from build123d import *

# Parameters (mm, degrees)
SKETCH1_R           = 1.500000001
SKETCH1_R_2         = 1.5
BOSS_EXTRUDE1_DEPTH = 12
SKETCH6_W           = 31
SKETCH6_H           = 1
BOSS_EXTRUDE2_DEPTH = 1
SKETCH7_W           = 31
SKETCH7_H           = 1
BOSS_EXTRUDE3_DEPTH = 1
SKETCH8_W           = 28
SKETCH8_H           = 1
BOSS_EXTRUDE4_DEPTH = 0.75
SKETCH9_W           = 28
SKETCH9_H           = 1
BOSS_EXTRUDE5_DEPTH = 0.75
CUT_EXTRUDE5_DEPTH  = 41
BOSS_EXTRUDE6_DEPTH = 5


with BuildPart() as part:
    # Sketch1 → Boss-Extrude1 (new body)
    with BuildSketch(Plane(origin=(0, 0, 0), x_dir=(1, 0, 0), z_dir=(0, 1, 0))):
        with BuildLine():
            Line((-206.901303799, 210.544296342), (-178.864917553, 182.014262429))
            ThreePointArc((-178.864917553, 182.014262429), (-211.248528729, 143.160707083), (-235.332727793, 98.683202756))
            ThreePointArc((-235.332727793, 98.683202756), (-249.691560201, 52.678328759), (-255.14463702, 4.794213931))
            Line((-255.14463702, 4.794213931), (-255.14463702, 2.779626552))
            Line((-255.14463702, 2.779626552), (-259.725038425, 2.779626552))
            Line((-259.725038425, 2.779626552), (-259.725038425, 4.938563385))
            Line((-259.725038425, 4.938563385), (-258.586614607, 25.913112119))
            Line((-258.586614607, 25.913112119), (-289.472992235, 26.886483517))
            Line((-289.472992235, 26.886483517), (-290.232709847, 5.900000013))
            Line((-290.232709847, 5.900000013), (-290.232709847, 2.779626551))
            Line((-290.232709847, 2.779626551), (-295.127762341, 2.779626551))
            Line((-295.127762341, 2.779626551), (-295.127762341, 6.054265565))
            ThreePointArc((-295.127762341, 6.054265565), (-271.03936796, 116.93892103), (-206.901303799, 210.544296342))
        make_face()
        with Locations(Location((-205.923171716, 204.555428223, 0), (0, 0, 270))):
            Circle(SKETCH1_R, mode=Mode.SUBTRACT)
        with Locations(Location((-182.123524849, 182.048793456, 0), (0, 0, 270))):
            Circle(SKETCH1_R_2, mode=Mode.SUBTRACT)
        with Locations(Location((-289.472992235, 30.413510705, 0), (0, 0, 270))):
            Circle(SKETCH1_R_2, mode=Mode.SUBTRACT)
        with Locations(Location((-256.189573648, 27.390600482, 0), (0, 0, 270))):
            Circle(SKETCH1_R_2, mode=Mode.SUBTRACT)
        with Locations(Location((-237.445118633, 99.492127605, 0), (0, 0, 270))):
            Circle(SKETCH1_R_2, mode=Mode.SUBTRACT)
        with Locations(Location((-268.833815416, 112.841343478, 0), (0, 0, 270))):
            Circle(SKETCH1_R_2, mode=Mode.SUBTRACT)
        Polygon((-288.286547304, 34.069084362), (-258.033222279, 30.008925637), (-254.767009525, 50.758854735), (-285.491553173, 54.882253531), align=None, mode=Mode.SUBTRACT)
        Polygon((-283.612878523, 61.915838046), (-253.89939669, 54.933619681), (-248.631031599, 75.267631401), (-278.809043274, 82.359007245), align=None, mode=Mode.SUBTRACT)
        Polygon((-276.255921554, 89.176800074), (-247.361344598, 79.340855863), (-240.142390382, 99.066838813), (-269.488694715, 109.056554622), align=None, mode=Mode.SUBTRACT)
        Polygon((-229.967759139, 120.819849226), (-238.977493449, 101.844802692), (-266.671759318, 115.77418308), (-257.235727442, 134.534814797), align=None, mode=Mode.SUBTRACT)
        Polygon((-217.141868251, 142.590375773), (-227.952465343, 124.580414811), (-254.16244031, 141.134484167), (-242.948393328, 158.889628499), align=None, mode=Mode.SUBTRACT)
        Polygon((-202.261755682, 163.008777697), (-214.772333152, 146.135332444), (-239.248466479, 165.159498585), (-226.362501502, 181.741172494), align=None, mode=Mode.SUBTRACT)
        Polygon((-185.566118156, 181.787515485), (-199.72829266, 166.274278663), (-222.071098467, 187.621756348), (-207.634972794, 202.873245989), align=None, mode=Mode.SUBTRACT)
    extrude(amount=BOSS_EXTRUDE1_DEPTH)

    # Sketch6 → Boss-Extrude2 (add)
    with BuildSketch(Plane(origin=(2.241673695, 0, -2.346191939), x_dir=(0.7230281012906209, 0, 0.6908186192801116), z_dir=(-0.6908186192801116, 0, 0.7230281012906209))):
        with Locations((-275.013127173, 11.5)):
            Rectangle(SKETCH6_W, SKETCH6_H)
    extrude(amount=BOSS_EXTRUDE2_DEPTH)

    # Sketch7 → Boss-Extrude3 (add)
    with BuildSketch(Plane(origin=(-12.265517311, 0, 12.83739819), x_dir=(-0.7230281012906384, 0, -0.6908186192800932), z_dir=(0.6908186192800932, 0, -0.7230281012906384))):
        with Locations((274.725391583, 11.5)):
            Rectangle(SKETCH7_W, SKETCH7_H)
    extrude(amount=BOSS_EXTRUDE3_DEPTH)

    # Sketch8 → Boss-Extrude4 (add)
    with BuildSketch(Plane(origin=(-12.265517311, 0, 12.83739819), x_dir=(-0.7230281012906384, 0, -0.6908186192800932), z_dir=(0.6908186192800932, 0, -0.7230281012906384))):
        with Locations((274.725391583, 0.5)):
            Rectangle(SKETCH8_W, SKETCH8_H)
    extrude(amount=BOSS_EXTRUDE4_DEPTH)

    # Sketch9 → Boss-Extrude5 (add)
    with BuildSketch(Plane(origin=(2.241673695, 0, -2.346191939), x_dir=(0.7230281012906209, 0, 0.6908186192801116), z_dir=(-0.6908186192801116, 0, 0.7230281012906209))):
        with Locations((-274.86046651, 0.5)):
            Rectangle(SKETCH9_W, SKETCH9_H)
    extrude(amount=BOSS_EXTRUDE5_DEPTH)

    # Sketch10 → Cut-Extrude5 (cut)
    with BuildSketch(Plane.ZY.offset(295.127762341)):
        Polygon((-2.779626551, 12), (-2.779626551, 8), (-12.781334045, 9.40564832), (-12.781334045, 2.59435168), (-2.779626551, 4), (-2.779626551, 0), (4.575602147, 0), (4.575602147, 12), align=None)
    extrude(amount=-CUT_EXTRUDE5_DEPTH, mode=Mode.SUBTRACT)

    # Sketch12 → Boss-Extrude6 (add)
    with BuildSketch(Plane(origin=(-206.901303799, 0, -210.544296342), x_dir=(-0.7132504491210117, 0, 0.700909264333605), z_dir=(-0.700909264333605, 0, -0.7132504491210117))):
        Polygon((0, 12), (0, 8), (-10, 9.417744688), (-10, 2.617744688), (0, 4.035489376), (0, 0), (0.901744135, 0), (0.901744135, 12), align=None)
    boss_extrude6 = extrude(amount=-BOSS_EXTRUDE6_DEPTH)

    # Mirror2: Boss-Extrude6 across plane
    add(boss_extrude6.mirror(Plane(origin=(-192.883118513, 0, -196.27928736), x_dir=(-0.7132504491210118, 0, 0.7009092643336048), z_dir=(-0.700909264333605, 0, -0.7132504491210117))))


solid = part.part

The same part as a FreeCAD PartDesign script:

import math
import FreeCAD as App
import Part
import Sketcher
Q = App.Units.Quantity


def add_polygon(sketch, points):
    """Adds a closed chain of lines whose ends are joined by coincident constraints."""
    first, n = sketch.GeometryCount, len(points)
    for a, b in zip(points, points[1:] + points[:1]):
        sketch.addGeometry(Part.LineSegment(App.Vector(*a, 0), App.Vector(*b, 0)), False)
    for i in range(n):
        sketch.addConstraint(Sketcher.Constraint("Coincident", first + i, 2, first + (i + 1) % n, 1))

doc = App.newDocument("Part")
body = doc.addObject("PartDesign::Body", "Body")

# Sketch on XZ plane
sketch1 = body.newObject("Sketcher::SketchObject", "Sketch")
sketch1.AttachmentSupport = (doc.getObject("XZ_Plane"), [""])
sketch1.MapMode = "FlatFace"
sketch1.addGeometry(Part.LineSegment(App.Vector(-178.864918, -182.014262, 0), App.Vector(-206.901304, -210.544296, 0)), False)  # 0
sketch1.addGeometry(Part.ArcOfCircle(Part.Circle(App.Vector(0, 0, 0), App.Vector(0, 0, 1), 295.189855), math.radians(-178.824796), math.radians(-134.5)), False)  # 1
sketch1.addGeometry(Part.LineSegment(App.Vector(-295.127762, -6.054266, 0), App.Vector(-295.127762, -2.779627, 0)), False)  # 2
sketch1.addGeometry(Part.LineSegment(App.Vector(-295.127762, -2.779627, 0), App.Vector(-290.23271, -2.779627, 0)), False)  # 3
sketch1.addGeometry(Part.LineSegment(App.Vector(-290.23271, -2.779627, 0), App.Vector(-290.23271, -5.9, 0)), False)  # 4
sketch1.addGeometry(Part.LineSegment(App.Vector(-290.23271, -5.9, 0), App.Vector(-289.472992, -26.886484, 0)), False)  # 5
sketch1.addGeometry(Part.LineSegment(App.Vector(-289.472992, -26.886484, 0), App.Vector(-258.586615, -25.913112, 0)), False)  # 6
sketch1.addGeometry(Part.LineSegment(App.Vector(-258.586615, -25.913112, 0), App.Vector(-259.725038, -4.938563, 0)), False)  # 7
sketch1.addGeometry(Part.LineSegment(App.Vector(-259.725038, -4.938563, 0), App.Vector(-259.725038, -2.779627, 0)), False)  # 8
sketch1.addGeometry(Part.LineSegment(App.Vector(-259.725038, -2.779627, 0), App.Vector(-255.144637, -2.779627, 0)), False)  # 9
sketch1.addGeometry(Part.LineSegment(App.Vector(-255.144637, -2.779627, 0), App.Vector(-255.144637, -4.794214, 0)), False)  # 10
sketch1.addGeometry(Part.ArcOfCircle(Part.Circle(App.Vector(-0.008796, 0.008278, 0), App.Vector(0, 0, 1), 255.181037), math.radians(-178.921633), math.radians(-157.247522)), False)  # 11
sketch1.addGeometry(Part.ArcOfCircle(Part.Circle(App.Vector(-0.00026, -0.012076, 0), App.Vector(0, 0, 1), 255.181037), math.radians(-157.252478), math.radians(-134.501859)), False)  # 12
sketch1.addGeometry(Part.Circle(App.Vector(-256.189574, -27.3906, 0), App.Vector(0, 0, 1), 1.5), False)  # 13
add_polygon(sketch1, [(-288.286547, -34.069084), (-285.491553, -54.882254), (-254.76701, -50.758855), (-258.033222, -30.008926)])  # lines 14-17
sketch1.addGeometry(Part.Circle(App.Vector(-289.472992, -30.413511, 0), App.Vector(0, 0, 1), 1.5), False)  # 18
add_polygon(sketch1, [(-283.612879, -61.915838), (-278.809043, -82.359007), (-248.631032, -75.267631), (-253.899397, -54.93362)])  # lines 19-22
sketch1.addGeometry(Part.Circle(App.Vector(-237.445119, -99.492128, 0), App.Vector(0, 0, 1), 1.5), False)  # 23
add_polygon(sketch1, [(-276.255922, -89.1768), (-269.488695, -109.056555), (-240.14239, -99.066839), (-247.361345, -79.340856)])  # lines 24-27
sketch1.addGeometry(Part.Circle(App.Vector(-268.833815, -112.841343, 0), App.Vector(0, 0, 1), 1.5), False)  # 28
add_polygon(sketch1, [(-217.141868, -142.590376), (-227.952465, -124.580415), (-254.16244, -141.134484), (-242.948393, -158.889628)])  # lines 29-32
sketch1.addGeometry(Part.Circle(App.Vector(-182.123525, -182.048793, 0), App.Vector(0, 0, 1), 1.5), False)  # 33
add_polygon(sketch1, [(-185.566118, -181.787515), (-199.728293, -166.274279), (-222.071098, -187.621756), (-207.634973, -202.873246)])  # lines 34-37
sketch1.addGeometry(Part.Circle(App.Vector(-205.923172, -204.555428, 0), App.Vector(0, 0, 1), 1.5), False)  # 38
add_polygon(sketch1, [(-202.261756, -163.008778), (-214.772333, -146.135332), (-239.248466, -165.159499), (-226.362502, -181.741172)])  # lines 39-42
add_polygon(sketch1, [(-229.967759, -120.819849), (-238.977493, -101.844803), (-266.671759, -115.774183), (-257.235727, -134.534815)])  # lines 43-46
sketch1.addConstraint([
    Sketcher.Constraint("Coincident", 0, 2, 1, 2),
    Sketcher.Constraint("Coincident", 1, 1, 2, 1),
    Sketcher.Constraint("Coincident", 2, 2, 3, 1),
    Sketcher.Constraint("Coincident", 3, 2, 4, 1),
    Sketcher.Constraint("Coincident", 4, 2, 5, 1),
    Sketcher.Constraint("Coincident", 5, 2, 6, 1),
    Sketcher.Constraint("Coincident", 6, 2, 7, 1),
    Sketcher.Constraint("Coincident", 7, 2, 8, 1),
    Sketcher.Constraint("Coincident", 8, 2, 9, 1),
    Sketcher.Constraint("Coincident", 9, 2, 10, 1),
    Sketcher.Constraint("Coincident", 10, 2, 11, 1),
    Sketcher.Constraint("Coincident", 11, 2, 12, 1),
    Sketcher.Constraint("Coincident", 12, 2, 0, 1),
    Sketcher.Constraint("Vertical", 2),
    Sketcher.Constraint("Horizontal", 3),
    Sketcher.Constraint("Vertical", 4),
    Sketcher.Constraint("Vertical", 8),
    Sketcher.Constraint("Horizontal", 9),
    Sketcher.Constraint("Vertical", 10),
    Sketcher.Constraint("Coincident", 1, 3, -1, 1),
    Sketcher.Constraint("Diameter", 13, Q("3 mm")),
    Sketcher.Constraint("Diameter", 18, Q("3 mm")),
    Sketcher.Constraint("Diameter", 23, Q("3 mm")),
    Sketcher.Constraint("Diameter", 28, Q("3 mm")),
    Sketcher.Constraint("Diameter", 33, Q("3 mm")),
    Sketcher.Constraint("Diameter", 38, Q("3 mm")),
    Sketcher.Constraint("Distance", 14, Q("21 mm")),
    Sketcher.Constraint("Distance", 15, Q("31 mm")),
    Sketcher.Constraint("Distance", 19, Q("21 mm")),
    Sketcher.Constraint("Distance", 20, Q("31 mm")),
    Sketcher.Constraint("Distance", 24, Q("21 mm")),
    Sketcher.Constraint("Distance", 25, Q("31 mm")),
    Sketcher.Constraint("Distance", 30, Q("31 mm")),
    Sketcher.Constraint("Distance", 31, Q("21 mm")),
    Sketcher.Constraint("Distance", 40, Q("31 mm")),
    Sketcher.Constraint("Distance", 41, Q("21 mm")),
    Sketcher.Constraint("Distance", 44, Q("31 mm")),
    Sketcher.Constraint("Distance", 45, Q("21 mm")),
    Sketcher.Constraint("DistanceY", 4, 2, -1, 1, Q("5.9 mm")),
    Sketcher.Constraint("DistanceX", 9, 1, 9, 2, Q("4.580401 mm")),
    Sketcher.Constraint("Radius", 1, Q("295.189855 mm")),
    Sketcher.Constraint("Radius", 11, Q("255.181037 mm")),
    Sketcher.Constraint("Radius", 12, Q("255.181037 mm")),
    Sketcher.Constraint("DistanceY", 2, 1, 2, 2, Q("3.274639 mm")),
    Sketcher.Constraint("DistanceY", 13, 3, -1, 1, Q("27.3906 mm")),
    Sketcher.Constraint("DistanceY", 27, 2, -1, 1, Q("89.1768 mm")),
    Sketcher.Constraint("DistanceX", 35, 2, -1, 1, Q("222.071098 mm")),
    Sketcher.Constraint("DistanceY", 40, 2, -1, 1, Q("165.159499 mm")),
    Sketcher.Constraint("DistanceX", 41, 2, -1, 1, Q("226.362502 mm")),
    Sketcher.Constraint("DistanceY", 38, 3, 23, 3, Q("105.063301 mm")),
    Sketcher.Constraint("DistanceX", 13, 3, 38, 3, Q("50.266402 mm")),
    Sketcher.Constraint("DistanceY", 23, 3, 2, 2, Q("96.712501 mm")),
    Sketcher.Constraint("DistanceY", 18, 3, 6, 2, Q("4.500399 mm")),
    Sketcher.Constraint("DistanceY", 6, 2, 10, 2, Q("21.118898 mm")),
    Sketcher.Constraint("DistanceX", 23, 3, 12, 2, Q("58.580201 mm")),
    Sketcher.Constraint("DistanceY", 14, 2, 15, 2, Q("4.123399 mm")),
    Sketcher.Constraint("DistanceY", 17, 2, 5, 2, Q("7.182601 mm")),
    Sketcher.Constraint("DistanceX", 24, 2, 31, 2, Q("26.540301 mm")),
    Sketcher.Constraint("DistanceY", 38, 3, 31, 2, Q("45.6658 mm")),
    Sketcher.Constraint("DistanceX", 31, 2, 34, 2, Q("43.220101 mm")),
    Sketcher.Constraint("DistanceX", 36, 2, 38, 3, Q("1.711801 mm")),
    Sketcher.Constraint("DistanceX", 37, 2, 12, 2, Q("6.701201 mm")),
    Sketcher.Constraint("DistanceX", 40, 2, 32, 2, Q("22.106598 mm")),
    Sketcher.Constraint("DistanceY", 34, 2, 42, 2, Q("3.265501 mm")),
    Sketcher.Constraint("DistanceY", 42, 2, 32, 2, Q("20.418402 mm")),
    Sketcher.Constraint("DistanceY", 43, 2, 11, 2, Q("3.1616 mm")),
    Sketcher.Constraint("DistanceY", 30, 2, 44, 2, Q("25.360301 mm")),
    Sketcher.Constraint("Distance", 5, Q("21.00023 mm")),
    Sketcher.Constraint("Distance", 6, Q("30.901712 mm")),
    Sketcher.Constraint("Distance", 7, Q("21.005421 mm")),
    Sketcher.Constraint("Distance", 16, Q("21.005421 mm")),
    Sketcher.Constraint("Distance", 21, Q("21.005421 mm")),
    Sketcher.Constraint("Distance", 26, Q("21.005421 mm")),
    Sketcher.Constraint("Distance", 29, Q("21.005421 mm")),
    Sketcher.Constraint("Distance", 34, Q("21.005421 mm")),
    Sketcher.Constraint("Distance", 35, Q("30.901712 mm")),
    Sketcher.Constraint("Distance", 36, Q("21.00023 mm")),
    Sketcher.Constraint("Distance", 39, Q("21.005421 mm")),
    Sketcher.Constraint("Distance", 43, Q("21.005421 mm")),
    Sketcher.Constraint("DistanceX", 3, 1, 3, 2, Q("4.895052 mm")),
    Sketcher.Constraint("DistanceY", 4, 2, 4, 1, Q("3.120373 mm")),
    Sketcher.Constraint("DistanceY", 8, 1, 8, 2, Q("2.158937 mm")),
    Sketcher.Constraint("DistanceY", 10, 2, 10, 1, Q("2.014587 mm")),
    Sketcher.Constraint("DistanceY", -1, 1, 11, 3, Q("0.008278 mm")),
    Sketcher.Constraint("DistanceX", 12, 3, -1, 1, Q("0.00026 mm")),
    Sketcher.Constraint("DistanceY", 18, 3, -1, 1, Q("30.413511 mm")),
    Sketcher.Constraint("DistanceX", 23, 3, -1, 1, Q("237.445119 mm")),
    Sketcher.Constraint("DistanceX", 38, 3, -1, 1, Q("205.923172 mm")),
    Sketcher.Constraint("DistanceX", 7, 2, -1, 1, Q("259.725038 mm")),
    Sketcher.Constraint("DistanceX", 15, 2, -1, 1, Q("254.76701 mm")),
    Sketcher.Constraint("DistanceX", 20, 2, -1, 1, Q("248.631032 mm")),
    Sketcher.Constraint("DistanceY", 20, 2, -1, 1, Q("75.267631 mm")),
    Sketcher.Constraint("DistanceY", 21, 2, -1, 1, Q("54.93362 mm")),
    Sketcher.Constraint("DistanceX", 22, 2, -1, 1, Q("283.612879 mm")),
    Sketcher.Constraint("DistanceY", 22, 2, -1, 1, Q("61.915838 mm")),
    Sketcher.Constraint("DistanceX", 25, 2, -1, 1, Q("240.14239 mm")),
    Sketcher.Constraint("DistanceY", 25, 2, -1, 1, Q("99.066839 mm")),
    Sketcher.Constraint("DistanceX", 27, 2, -1, 1, Q("276.255922 mm")),
    Sketcher.Constraint("DistanceX", 30, 2, -1, 1, Q("254.16244 mm")),
    Sketcher.Constraint("DistanceX", 32, 2, -1, 1, Q("217.141868 mm")),
    Sketcher.Constraint("DistanceY", 34, 2, -1, 1, Q("166.274279 mm")),
    Sketcher.Constraint("DistanceX", 44, 2, -1, 1, Q("266.671759 mm")),
    Sketcher.Constraint("DistanceX", 46, 2, -1, 1, Q("229.967759 mm")),
    Sketcher.Constraint("DistanceY", 46, 2, -1, 1, Q("120.819849 mm")),
    Sketcher.Constraint("DistanceX", 18, 3, 13, 3, Q("33.283419 mm")),
    Sketcher.Constraint("DistanceX", 28, 3, 13, 3, Q("12.644242 mm")),
    Sketcher.Constraint("DistanceY", 28, 3, 11, 3, Q("112.849622 mm")),
    Sketcher.Constraint("DistanceX", 28, 3, 33, 3, Q("86.710291 mm")),
    Sketcher.Constraint("DistanceY", 33, 3, 28, 3, Q("69.20745 mm")),
    Sketcher.Constraint("DistanceY", 0, 2, 38, 3, Q("5.988868 mm")),
    Sketcher.Constraint("DistanceY", 14, 2, 5, 2, Q("27.99577 mm")),
    Sketcher.Constraint("DistanceX", 16, 2, 13, 3, Q("1.843649 mm")),
    Sketcher.Constraint("DistanceY", 23, 3, 26, 2, Q("20.151272 mm")),
    Sketcher.Constraint("DistanceX", 39, 2, 34, 2, Q("15.04404 mm")),
    Sketcher.Constraint("DistanceY", 30, 2, 45, 2, Q("6.599669 mm")),
])
pad1 = body.newObject("PartDesign::Pad", "Pad")
pad1.Profile = sketch1
pad1.Length = 12
pad1.Reversed = True

# Sketch on an angled plane
sketch2 = body.newObject("Sketcher::SketchObject", "Sketch001")
sketch2.Placement = App.Placement(App.Vector(2.241674, 0, -2.346192), App.Rotation(App.Vector(0.723028101, 0, 0.690818619), App.Vector(0, 0.999999999, 0), App.Vector(-0.690818619, 0, 0.723028101), "ZXY"))
add_polygon(sketch2, [(-290.513127, 12), (-290.513127, 11), (-259.513127, 11), (-259.513127, 12)])  # lines 0-3
sketch2.addConstraint([
    Sketcher.Constraint("Vertical", 0),
    Sketcher.Constraint("Horizontal", 1),
    Sketcher.Constraint("Vertical", 2),
    Sketcher.Constraint("Horizontal", 3),
    Sketcher.Constraint("DistanceX", 1, 1, 1, 2, Q("31 mm")),
    Sketcher.Constraint("DistanceY", 0, 2, 0, 1, Q("1 mm")),
    Sketcher.Constraint("DistanceY", -1, 1, 0, 2, Q("11 mm")),
    Sketcher.Constraint("DistanceX", 0, 2, -1, 1, Q("290.513127 mm")),
])
pad2 = body.newObject("PartDesign::Pad", "Pad001")
pad2.Profile = sketch2
pad2.Length = 1

# Sketch on an angled plane
sketch3 = body.newObject("Sketcher::SketchObject", "Sketch002")
sketch3.Placement = App.Placement(App.Vector(-12.265517, 0, 12.837398), App.Rotation(App.Vector(-0.723028101, 0, -0.690818619), App.Vector(0, 0.999999999, 0), App.Vector(0.690818619, 0, -0.723028101), "ZXY"))
add_polygon(sketch3, [(259.225391, 12), (259.225391, 11), (290.225391, 11), (290.225391, 12)])  # lines 0-3
sketch3.addConstraint([
    Sketcher.Constraint("Vertical", 0),
    Sketcher.Constraint("Horizontal", 1),
    Sketcher.Constraint("Vertical", 2),
    Sketcher.Constraint("Horizontal", 3),
    Sketcher.Constraint("DistanceX", 1, 1, 1, 2, Q("31 mm")),
    Sketcher.Constraint("DistanceY", 0, 2, 0, 1, Q("1 mm")),
    Sketcher.Constraint("DistanceY", -1, 1, 0, 2, Q("11 mm")),
    Sketcher.Constraint("DistanceX", -1, 1, 0, 2, Q("259.225391 mm")),
])
pad3 = body.newObject("PartDesign::Pad", "Pad002")
pad3.Profile = sketch3
pad3.Length = 1

# Sketch on an angled plane
sketch4 = body.newObject("Sketcher::SketchObject", "Sketch003")
sketch4.Placement = App.Placement(App.Vector(-12.265517, 0, 12.837398), App.Rotation(App.Vector(-0.723028101, 0, -0.690818619), App.Vector(0, 0.999999999, 0), App.Vector(0.690818619, 0, -0.723028101), "ZXY"))
add_polygon(sketch4, [(260.725391, 1), (260.725391, 0), (288.725391, 0), (288.725391, 1)])  # lines 0-3
sketch4.addConstraint([
    Sketcher.Constraint("Vertical", 0),
    Sketcher.Constraint("Horizontal", 1),
    Sketcher.Constraint("Vertical", 2),
    Sketcher.Constraint("Horizontal", 3),
    Sketcher.Constraint("PointOnObject", 0, 2, -1),
    Sketcher.Constraint("DistanceX", 1, 1, 1, 2, Q("28 mm")),
    Sketcher.Constraint("DistanceY", 0, 2, 0, 1, Q("1 mm")),
    Sketcher.Constraint("DistanceX", -1, 1, 0, 2, Q("260.725391 mm")),
])
pad4 = body.newObject("PartDesign::Pad", "Pad003")
pad4.Profile = sketch4
pad4.Length = 0.75

# Sketch on an angled plane
sketch5 = body.newObject("Sketcher::SketchObject", "Sketch004")
sketch5.Placement = App.Placement(App.Vector(2.241674, 0, -2.346192), App.Rotation(App.Vector(0.723028101, 0, 0.690818619), App.Vector(0, 0.999999999, 0), App.Vector(-0.690818619, 0, 0.723028101), "ZXY"))
add_polygon(sketch5, [(-288.860466, 1), (-288.860466, 0), (-260.860466, 0), (-260.860466, 1)])  # lines 0-3
sketch5.addConstraint([
    Sketcher.Constraint("Vertical", 0),
    Sketcher.Constraint("Horizontal", 1),
    Sketcher.Constraint("Vertical", 2),
    Sketcher.Constraint("Horizontal", 3),
    Sketcher.Constraint("PointOnObject", 0, 2, -1),
    Sketcher.Constraint("DistanceX", 1, 1, 1, 2, Q("28 mm")),
    Sketcher.Constraint("DistanceY", 0, 2, 0, 1, Q("1 mm")),
    Sketcher.Constraint("DistanceX", 0, 2, -1, 1, Q("288.860466 mm")),
])
pad5 = body.newObject("PartDesign::Pad", "Pad004")
pad5.Profile = sketch5
pad5.Length = 0.75

# Sketch on YZ plane
sketch6 = body.newObject("Sketcher::SketchObject", "Sketch005")
sketch6.AttachmentSupport = (doc.getObject("YZ_Plane"), [""])
sketch6.MapMode = "FlatFace"
sketch6.AttachmentOffset = App.Placement(App.Vector(0, 0, -295.127762), App.Rotation())
add_polygon(sketch6, [(12, -2.779627), (8, -2.779627), (9.405648, -12.781334), (2.594352, -12.781334), (4, -2.779627), (0, -2.779627), (0, 4.575602), (12, 4.575602)])  # lines 0-7
sketch6.addConstraint([
    Sketcher.Constraint("Horizontal", 0),
    Sketcher.Constraint("Horizontal", 2),
    Sketcher.Constraint("Horizontal", 4),
    Sketcher.Constraint("Vertical", 5),
    Sketcher.Constraint("Horizontal", 6),
    Sketcher.Constraint("Vertical", 7),
    Sketcher.Constraint("PointOnObject", 4, 2, -2),
    Sketcher.Constraint("Horizontal", 0, 2, 3, 2),
    Sketcher.Constraint("Equal", 0, 4),
    Sketcher.Constraint("Equal", 1, 3),
    Sketcher.Constraint("DistanceX", 0, 2, 0, 1, Q("4 mm")),
    Sketcher.Constraint("DistanceX", 6, 1, 6, 2, Q("12 mm")),
    Sketcher.Constraint("Angle", 1, Q("-82 deg")),
    Sketcher.Constraint("Distance", 1, Q("10.1 mm")),
    Sketcher.Constraint("DistanceY", 5, 1, 5, 2, Q("7.355229 mm")),
    Sketcher.Constraint("DistanceY", 0, 2, -1, 1, Q("2.779627 mm")),
])
pocket1 = body.newObject("PartDesign::Pocket", "Pocket")
pocket1.Profile = sketch6
pocket1.Length = 41
pocket1.Reversed = True

# Sketch on an angled plane
sketch7 = body.newObject("Sketcher::SketchObject", "Sketch006")
sketch7.Placement = App.Placement(App.Vector(-206.901304, 0, -210.544296), App.Rotation(App.Vector(-0.713250449, 0, 0.700909264), App.Vector(0, 0.999999999, 0), App.Vector(-0.700909264, 0, -0.713250449), "ZXY"))
add_polygon(sketch7, [(0, 12), (0, 8), (-10, 9.417745), (-10, 2.617745), (0, 4.035489), (0, 0), (0.901744, 0), (0.901744, 12)])  # lines 0-7
sketch7.addConstraint([
    Sketcher.Constraint("Vertical", 0),
    Sketcher.Constraint("Vertical", 2),
    Sketcher.Constraint("Vertical", 4),
    Sketcher.Constraint("Horizontal", 5),
    Sketcher.Constraint("Vertical", 6),
    Sketcher.Constraint("Horizontal", 7),
    Sketcher.Constraint("Coincident", 4, 2, -1, 1),
    Sketcher.Constraint("PointOnObject", 0, 2, -2),
    Sketcher.Constraint("Equal", 1, 3),
    Sketcher.Constraint("DistanceY", 0, 2, 0, 1, Q("4 mm")),
    Sketcher.Constraint("DistanceY", 6, 1, 6, 2, Q("12 mm")),
    Sketcher.Constraint("DistanceY", 2, 2, 2, 1, Q("6.8 mm")),
    Sketcher.Constraint("DistanceX", 1, 2, -1, 1, Q("10 mm")),
    Sketcher.Constraint("Distance", 1, Q("10.1 mm")),
    Sketcher.Constraint("DistanceX", 5, 1, 5, 2, Q("0.901744 mm")),
])
pad6 = body.newObject("PartDesign::Pad", "Pad005")
pad6.Profile = sketch7
pad6.Length = 5
pad6.Reversed = True
doc.recompute()

datumplane = body.newObject("PartDesign::Plane", "DatumPlane")
datumplane.Placement = App.Placement(App.Vector(-192.883118, 0, -196.279287), App.Rotation(App.Vector(0.713250449, 0, -0.700909264), App.Vector(0, -1, 0), App.Vector(-0.700909264, 0, -0.713250449), "ZXY"))
mirrored = body.newObject("PartDesign::Mirrored", "Mirrored")
mirrored.Originals = [pad6]
mirrored.MirrorPlane = (datumplane, [""])
body.Tip = mirrored

doc.recompute()
